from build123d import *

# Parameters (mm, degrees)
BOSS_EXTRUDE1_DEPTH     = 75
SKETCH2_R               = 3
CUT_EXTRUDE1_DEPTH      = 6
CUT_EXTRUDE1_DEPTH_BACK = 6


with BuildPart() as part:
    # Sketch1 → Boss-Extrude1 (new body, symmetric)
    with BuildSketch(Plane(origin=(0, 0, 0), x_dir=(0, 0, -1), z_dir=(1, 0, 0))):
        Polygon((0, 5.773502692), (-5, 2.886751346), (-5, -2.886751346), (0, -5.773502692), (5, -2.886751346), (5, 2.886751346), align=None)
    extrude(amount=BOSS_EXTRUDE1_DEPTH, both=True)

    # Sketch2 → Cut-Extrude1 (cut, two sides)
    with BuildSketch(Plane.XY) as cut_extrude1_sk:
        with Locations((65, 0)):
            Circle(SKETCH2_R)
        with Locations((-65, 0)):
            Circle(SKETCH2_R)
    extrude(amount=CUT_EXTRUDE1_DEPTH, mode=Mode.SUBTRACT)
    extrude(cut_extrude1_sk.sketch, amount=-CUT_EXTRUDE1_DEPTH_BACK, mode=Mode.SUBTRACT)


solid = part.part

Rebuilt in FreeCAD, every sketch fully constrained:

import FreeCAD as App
import Part
import Sketcher

V = App.Vector
Q = App.Units.Quantity

doc = App.newDocument("Part")
body = doc.addObject("PartDesign::Body", "Body")

# Sketch on YZ plane
sketch1 = body.newObject("Sketcher::SketchObject", "Sketch")
sketch1.AttachmentSupport = (doc.getObject("YZ_Plane"), [""])
sketch1.MapMode = "FlatFace"
sketch1.addGeometry([
    Part.LineSegment(V(6, 0, 0), V(3, 5, 0)),  # 0
    Part.LineSegment(V(3, 5, 0), V(-3, 5, 0)),  # 1
    Part.LineSegment(V(-3, 5, 0), V(-6, 0, 0)),  # 2
    Part.LineSegment(V(-6, 0, 0), V(-3, -5, 0)),  # 3
    Part.LineSegment(V(-3, -5, 0), V(3, -5, 0)),  # 4
    Part.LineSegment(V(3, -5, 0), V(6, 0, 0)),  # 5
], False)
sketch1.addConstraint([
    Sketcher.Constraint("Coincident", 0, 2, 1, 1),
    Sketcher.Constraint("Coincident", 1, 2, 2, 1),
    Sketcher.Constraint("Coincident", 2, 2, 3, 1),
    Sketcher.Constraint("Coincident", 3, 2, 4, 1),
    Sketcher.Constraint("Coincident", 4, 2, 5, 1),
    Sketcher.Constraint("Coincident", 5, 2, 0, 1),
    Sketcher.Constraint("Horizontal", 1),
    Sketcher.Constraint("Horizontal", 4),
    Sketcher.Constraint("Symmetric", 0, 2, 3, 2, -1, 1),
    Sketcher.Constraint("Symmetric", 2, 2, 5, 2, -1, 1),
    Sketcher.Constraint("PointOnObject", 2, 2, -1),
    Sketcher.Constraint("Parallel", 2, 5),
    Sketcher.Constraint("Vertical", 1, 2, 3, 2),
    Sketcher.Constraint("Angle", 0, Q("120 deg")),
    Sketcher.Constraint("DistanceY", -1, 1, 0, 2, 5.0),
    Sketcher.Constraint("DistanceX", 1, 2, 1, 1, 5.773503),
])
pad1 = body.newObject("PartDesign::Pad", "Pad")
pad1.Profile = sketch1
pad1.Length = 150
pad1.Midplane = True

# Sketch on XY plane
sketch2 = body.newObject("Sketcher::SketchObject", "Sketch001")
sketch2.AttachmentSupport = (doc.getObject("XY_Plane"), [""])
sketch2.MapMode = "FlatFace"
sketch2.addGeometry([
    Part.Circle(V(65, 0, 0), V(0, 0, 1), 3),
    Part.Circle(V(-65, 0, 0), V(0, 0, 1), 3),
], False)
sketch2.addConstraint([
    Sketcher.Constraint("Equal", 0, 1),
    Sketcher.Constraint("Symmetric", 0, 3, 1, 3, -1, 1),
    Sketcher.Constraint("PointOnObject", 0, 3, -1),
    Sketcher.Constraint("Diameter", 0, 6.0),
    Sketcher.Constraint("DistanceX", -1, 1, 0, 3, 65.0),
])
pocket1 = body.newObject("PartDesign::Pocket", "Pocket")
pocket1.Profile = sketch2
pocket1.Type = "ThroughAll"
pocket1.Midplane = True

doc.recompute()
